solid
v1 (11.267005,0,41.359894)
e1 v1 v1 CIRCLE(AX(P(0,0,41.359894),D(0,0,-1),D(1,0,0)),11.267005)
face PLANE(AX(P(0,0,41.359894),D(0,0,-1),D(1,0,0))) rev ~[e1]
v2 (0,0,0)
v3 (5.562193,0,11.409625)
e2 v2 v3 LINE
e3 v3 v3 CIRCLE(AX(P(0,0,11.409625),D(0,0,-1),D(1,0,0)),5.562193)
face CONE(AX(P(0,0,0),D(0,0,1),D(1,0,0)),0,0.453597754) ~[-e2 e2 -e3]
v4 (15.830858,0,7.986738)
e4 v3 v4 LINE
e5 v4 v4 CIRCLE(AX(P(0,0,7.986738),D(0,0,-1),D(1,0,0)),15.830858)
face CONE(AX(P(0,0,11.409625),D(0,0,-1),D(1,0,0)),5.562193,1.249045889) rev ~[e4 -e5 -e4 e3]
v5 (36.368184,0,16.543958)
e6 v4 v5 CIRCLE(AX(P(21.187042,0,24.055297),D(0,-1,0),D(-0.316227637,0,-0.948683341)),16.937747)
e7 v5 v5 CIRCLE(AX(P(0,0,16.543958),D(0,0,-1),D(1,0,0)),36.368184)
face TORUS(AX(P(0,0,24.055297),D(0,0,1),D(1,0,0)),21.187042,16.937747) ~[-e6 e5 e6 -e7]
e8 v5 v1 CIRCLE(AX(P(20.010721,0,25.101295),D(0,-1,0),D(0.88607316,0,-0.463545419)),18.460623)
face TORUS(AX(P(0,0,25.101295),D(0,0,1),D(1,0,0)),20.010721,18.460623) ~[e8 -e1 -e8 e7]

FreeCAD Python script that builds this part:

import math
import FreeCAD as App
import Part
import Sketcher

doc = App.newDocument("Part")
body = doc.addObject("PartDesign::Body", "Body")

# Sketch on XZ plane
sketch1 = doc.addObject("Sketcher::SketchObject", "Sketch")
body.addObject(sketch1)
sketch1.AttachmentSupport = (doc.XZ_Plane, [""])
sketch1.MapMode = "FlatFace"
sketch1.addGeometry([
    Part.LineSegment(App.Vector(0, 41, 0), App.Vector(0, 0, 0)),  # 0
    Part.LineSegment(App.Vector(0, 0, 0), App.Vector(6, 11, 0)),  # 1
    Part.LineSegment(App.Vector(6, 11, 0), App.Vector(16, 8, 0)),  # 2
    Part.ArcOfCircle(Part.Circle(App.Vector(21, 24, 0), App.Vector(0, 0, 1), 17), math.radians(-108), math.radians(-26)),  # 3
    Part.ArcOfCircle(Part.Circle(App.Vector(20, 25, 0), App.Vector(0, 0, 1), 18), math.radians(-28), math.radians(118)),  # 4
    Part.LineSegment(App.Vector(11, 41, 0), App.Vector(0, 41, 0)),  # 5
], False)
sketch1.addConstraint([
    Sketcher.Constraint("Coincident", 0, 2, 1, 1),
    Sketcher.Constraint("Coincident", 1, 2, 2, 1),
    Sketcher.Constraint("Tangent", 2, 2, 3, 1),
    Sketcher.Constraint("Coincident", 3, 2, 4, 1),
    Sketcher.Constraint("Coincident", 4, 2, 5, 1),
    Sketcher.Constraint("Coincident", 5, 2, 0, 1),
    Sketcher.Constraint("Vertical", 0),
    Sketcher.Constraint("Horizontal", 5),
    Sketcher.Constraint("Coincident", 0, 2, -1, 1),
    Sketcher.Constraint("Radius", 3, 16.937747),
    Sketcher.Constraint("Radius", 4, 18.460623),
    Sketcher.Constraint("DistanceY", 3, 3, 4, 3, 1.045998),
    Sketcher.Constraint("DistanceY", 4, 3, 4, 2, 16.258599),
    Sketcher.Constraint("Distance", 1, 12.693208),
    Sketcher.Constraint("DistanceX", 5, 2, 5, 1, 11.267005),
    Sketcher.Constraint("DistanceY", 0, 2, 0, 1, 41.359894),
    Sketcher.Constraint("DistanceX", -1, 1, 3, 3, 21.187042),
    Sketcher.Constraint("DistanceX", 1, 2, 4, 3, 14.448528),
])
revolution = doc.addObject("PartDesign::Revolution", "Revolution")
body.addObject(revolution)
revolution.Profile = sketch1
revolution.ReferenceAxis = (sketch1, ["V_Axis"])
revolution.Angle = 360

doc.recompute()
